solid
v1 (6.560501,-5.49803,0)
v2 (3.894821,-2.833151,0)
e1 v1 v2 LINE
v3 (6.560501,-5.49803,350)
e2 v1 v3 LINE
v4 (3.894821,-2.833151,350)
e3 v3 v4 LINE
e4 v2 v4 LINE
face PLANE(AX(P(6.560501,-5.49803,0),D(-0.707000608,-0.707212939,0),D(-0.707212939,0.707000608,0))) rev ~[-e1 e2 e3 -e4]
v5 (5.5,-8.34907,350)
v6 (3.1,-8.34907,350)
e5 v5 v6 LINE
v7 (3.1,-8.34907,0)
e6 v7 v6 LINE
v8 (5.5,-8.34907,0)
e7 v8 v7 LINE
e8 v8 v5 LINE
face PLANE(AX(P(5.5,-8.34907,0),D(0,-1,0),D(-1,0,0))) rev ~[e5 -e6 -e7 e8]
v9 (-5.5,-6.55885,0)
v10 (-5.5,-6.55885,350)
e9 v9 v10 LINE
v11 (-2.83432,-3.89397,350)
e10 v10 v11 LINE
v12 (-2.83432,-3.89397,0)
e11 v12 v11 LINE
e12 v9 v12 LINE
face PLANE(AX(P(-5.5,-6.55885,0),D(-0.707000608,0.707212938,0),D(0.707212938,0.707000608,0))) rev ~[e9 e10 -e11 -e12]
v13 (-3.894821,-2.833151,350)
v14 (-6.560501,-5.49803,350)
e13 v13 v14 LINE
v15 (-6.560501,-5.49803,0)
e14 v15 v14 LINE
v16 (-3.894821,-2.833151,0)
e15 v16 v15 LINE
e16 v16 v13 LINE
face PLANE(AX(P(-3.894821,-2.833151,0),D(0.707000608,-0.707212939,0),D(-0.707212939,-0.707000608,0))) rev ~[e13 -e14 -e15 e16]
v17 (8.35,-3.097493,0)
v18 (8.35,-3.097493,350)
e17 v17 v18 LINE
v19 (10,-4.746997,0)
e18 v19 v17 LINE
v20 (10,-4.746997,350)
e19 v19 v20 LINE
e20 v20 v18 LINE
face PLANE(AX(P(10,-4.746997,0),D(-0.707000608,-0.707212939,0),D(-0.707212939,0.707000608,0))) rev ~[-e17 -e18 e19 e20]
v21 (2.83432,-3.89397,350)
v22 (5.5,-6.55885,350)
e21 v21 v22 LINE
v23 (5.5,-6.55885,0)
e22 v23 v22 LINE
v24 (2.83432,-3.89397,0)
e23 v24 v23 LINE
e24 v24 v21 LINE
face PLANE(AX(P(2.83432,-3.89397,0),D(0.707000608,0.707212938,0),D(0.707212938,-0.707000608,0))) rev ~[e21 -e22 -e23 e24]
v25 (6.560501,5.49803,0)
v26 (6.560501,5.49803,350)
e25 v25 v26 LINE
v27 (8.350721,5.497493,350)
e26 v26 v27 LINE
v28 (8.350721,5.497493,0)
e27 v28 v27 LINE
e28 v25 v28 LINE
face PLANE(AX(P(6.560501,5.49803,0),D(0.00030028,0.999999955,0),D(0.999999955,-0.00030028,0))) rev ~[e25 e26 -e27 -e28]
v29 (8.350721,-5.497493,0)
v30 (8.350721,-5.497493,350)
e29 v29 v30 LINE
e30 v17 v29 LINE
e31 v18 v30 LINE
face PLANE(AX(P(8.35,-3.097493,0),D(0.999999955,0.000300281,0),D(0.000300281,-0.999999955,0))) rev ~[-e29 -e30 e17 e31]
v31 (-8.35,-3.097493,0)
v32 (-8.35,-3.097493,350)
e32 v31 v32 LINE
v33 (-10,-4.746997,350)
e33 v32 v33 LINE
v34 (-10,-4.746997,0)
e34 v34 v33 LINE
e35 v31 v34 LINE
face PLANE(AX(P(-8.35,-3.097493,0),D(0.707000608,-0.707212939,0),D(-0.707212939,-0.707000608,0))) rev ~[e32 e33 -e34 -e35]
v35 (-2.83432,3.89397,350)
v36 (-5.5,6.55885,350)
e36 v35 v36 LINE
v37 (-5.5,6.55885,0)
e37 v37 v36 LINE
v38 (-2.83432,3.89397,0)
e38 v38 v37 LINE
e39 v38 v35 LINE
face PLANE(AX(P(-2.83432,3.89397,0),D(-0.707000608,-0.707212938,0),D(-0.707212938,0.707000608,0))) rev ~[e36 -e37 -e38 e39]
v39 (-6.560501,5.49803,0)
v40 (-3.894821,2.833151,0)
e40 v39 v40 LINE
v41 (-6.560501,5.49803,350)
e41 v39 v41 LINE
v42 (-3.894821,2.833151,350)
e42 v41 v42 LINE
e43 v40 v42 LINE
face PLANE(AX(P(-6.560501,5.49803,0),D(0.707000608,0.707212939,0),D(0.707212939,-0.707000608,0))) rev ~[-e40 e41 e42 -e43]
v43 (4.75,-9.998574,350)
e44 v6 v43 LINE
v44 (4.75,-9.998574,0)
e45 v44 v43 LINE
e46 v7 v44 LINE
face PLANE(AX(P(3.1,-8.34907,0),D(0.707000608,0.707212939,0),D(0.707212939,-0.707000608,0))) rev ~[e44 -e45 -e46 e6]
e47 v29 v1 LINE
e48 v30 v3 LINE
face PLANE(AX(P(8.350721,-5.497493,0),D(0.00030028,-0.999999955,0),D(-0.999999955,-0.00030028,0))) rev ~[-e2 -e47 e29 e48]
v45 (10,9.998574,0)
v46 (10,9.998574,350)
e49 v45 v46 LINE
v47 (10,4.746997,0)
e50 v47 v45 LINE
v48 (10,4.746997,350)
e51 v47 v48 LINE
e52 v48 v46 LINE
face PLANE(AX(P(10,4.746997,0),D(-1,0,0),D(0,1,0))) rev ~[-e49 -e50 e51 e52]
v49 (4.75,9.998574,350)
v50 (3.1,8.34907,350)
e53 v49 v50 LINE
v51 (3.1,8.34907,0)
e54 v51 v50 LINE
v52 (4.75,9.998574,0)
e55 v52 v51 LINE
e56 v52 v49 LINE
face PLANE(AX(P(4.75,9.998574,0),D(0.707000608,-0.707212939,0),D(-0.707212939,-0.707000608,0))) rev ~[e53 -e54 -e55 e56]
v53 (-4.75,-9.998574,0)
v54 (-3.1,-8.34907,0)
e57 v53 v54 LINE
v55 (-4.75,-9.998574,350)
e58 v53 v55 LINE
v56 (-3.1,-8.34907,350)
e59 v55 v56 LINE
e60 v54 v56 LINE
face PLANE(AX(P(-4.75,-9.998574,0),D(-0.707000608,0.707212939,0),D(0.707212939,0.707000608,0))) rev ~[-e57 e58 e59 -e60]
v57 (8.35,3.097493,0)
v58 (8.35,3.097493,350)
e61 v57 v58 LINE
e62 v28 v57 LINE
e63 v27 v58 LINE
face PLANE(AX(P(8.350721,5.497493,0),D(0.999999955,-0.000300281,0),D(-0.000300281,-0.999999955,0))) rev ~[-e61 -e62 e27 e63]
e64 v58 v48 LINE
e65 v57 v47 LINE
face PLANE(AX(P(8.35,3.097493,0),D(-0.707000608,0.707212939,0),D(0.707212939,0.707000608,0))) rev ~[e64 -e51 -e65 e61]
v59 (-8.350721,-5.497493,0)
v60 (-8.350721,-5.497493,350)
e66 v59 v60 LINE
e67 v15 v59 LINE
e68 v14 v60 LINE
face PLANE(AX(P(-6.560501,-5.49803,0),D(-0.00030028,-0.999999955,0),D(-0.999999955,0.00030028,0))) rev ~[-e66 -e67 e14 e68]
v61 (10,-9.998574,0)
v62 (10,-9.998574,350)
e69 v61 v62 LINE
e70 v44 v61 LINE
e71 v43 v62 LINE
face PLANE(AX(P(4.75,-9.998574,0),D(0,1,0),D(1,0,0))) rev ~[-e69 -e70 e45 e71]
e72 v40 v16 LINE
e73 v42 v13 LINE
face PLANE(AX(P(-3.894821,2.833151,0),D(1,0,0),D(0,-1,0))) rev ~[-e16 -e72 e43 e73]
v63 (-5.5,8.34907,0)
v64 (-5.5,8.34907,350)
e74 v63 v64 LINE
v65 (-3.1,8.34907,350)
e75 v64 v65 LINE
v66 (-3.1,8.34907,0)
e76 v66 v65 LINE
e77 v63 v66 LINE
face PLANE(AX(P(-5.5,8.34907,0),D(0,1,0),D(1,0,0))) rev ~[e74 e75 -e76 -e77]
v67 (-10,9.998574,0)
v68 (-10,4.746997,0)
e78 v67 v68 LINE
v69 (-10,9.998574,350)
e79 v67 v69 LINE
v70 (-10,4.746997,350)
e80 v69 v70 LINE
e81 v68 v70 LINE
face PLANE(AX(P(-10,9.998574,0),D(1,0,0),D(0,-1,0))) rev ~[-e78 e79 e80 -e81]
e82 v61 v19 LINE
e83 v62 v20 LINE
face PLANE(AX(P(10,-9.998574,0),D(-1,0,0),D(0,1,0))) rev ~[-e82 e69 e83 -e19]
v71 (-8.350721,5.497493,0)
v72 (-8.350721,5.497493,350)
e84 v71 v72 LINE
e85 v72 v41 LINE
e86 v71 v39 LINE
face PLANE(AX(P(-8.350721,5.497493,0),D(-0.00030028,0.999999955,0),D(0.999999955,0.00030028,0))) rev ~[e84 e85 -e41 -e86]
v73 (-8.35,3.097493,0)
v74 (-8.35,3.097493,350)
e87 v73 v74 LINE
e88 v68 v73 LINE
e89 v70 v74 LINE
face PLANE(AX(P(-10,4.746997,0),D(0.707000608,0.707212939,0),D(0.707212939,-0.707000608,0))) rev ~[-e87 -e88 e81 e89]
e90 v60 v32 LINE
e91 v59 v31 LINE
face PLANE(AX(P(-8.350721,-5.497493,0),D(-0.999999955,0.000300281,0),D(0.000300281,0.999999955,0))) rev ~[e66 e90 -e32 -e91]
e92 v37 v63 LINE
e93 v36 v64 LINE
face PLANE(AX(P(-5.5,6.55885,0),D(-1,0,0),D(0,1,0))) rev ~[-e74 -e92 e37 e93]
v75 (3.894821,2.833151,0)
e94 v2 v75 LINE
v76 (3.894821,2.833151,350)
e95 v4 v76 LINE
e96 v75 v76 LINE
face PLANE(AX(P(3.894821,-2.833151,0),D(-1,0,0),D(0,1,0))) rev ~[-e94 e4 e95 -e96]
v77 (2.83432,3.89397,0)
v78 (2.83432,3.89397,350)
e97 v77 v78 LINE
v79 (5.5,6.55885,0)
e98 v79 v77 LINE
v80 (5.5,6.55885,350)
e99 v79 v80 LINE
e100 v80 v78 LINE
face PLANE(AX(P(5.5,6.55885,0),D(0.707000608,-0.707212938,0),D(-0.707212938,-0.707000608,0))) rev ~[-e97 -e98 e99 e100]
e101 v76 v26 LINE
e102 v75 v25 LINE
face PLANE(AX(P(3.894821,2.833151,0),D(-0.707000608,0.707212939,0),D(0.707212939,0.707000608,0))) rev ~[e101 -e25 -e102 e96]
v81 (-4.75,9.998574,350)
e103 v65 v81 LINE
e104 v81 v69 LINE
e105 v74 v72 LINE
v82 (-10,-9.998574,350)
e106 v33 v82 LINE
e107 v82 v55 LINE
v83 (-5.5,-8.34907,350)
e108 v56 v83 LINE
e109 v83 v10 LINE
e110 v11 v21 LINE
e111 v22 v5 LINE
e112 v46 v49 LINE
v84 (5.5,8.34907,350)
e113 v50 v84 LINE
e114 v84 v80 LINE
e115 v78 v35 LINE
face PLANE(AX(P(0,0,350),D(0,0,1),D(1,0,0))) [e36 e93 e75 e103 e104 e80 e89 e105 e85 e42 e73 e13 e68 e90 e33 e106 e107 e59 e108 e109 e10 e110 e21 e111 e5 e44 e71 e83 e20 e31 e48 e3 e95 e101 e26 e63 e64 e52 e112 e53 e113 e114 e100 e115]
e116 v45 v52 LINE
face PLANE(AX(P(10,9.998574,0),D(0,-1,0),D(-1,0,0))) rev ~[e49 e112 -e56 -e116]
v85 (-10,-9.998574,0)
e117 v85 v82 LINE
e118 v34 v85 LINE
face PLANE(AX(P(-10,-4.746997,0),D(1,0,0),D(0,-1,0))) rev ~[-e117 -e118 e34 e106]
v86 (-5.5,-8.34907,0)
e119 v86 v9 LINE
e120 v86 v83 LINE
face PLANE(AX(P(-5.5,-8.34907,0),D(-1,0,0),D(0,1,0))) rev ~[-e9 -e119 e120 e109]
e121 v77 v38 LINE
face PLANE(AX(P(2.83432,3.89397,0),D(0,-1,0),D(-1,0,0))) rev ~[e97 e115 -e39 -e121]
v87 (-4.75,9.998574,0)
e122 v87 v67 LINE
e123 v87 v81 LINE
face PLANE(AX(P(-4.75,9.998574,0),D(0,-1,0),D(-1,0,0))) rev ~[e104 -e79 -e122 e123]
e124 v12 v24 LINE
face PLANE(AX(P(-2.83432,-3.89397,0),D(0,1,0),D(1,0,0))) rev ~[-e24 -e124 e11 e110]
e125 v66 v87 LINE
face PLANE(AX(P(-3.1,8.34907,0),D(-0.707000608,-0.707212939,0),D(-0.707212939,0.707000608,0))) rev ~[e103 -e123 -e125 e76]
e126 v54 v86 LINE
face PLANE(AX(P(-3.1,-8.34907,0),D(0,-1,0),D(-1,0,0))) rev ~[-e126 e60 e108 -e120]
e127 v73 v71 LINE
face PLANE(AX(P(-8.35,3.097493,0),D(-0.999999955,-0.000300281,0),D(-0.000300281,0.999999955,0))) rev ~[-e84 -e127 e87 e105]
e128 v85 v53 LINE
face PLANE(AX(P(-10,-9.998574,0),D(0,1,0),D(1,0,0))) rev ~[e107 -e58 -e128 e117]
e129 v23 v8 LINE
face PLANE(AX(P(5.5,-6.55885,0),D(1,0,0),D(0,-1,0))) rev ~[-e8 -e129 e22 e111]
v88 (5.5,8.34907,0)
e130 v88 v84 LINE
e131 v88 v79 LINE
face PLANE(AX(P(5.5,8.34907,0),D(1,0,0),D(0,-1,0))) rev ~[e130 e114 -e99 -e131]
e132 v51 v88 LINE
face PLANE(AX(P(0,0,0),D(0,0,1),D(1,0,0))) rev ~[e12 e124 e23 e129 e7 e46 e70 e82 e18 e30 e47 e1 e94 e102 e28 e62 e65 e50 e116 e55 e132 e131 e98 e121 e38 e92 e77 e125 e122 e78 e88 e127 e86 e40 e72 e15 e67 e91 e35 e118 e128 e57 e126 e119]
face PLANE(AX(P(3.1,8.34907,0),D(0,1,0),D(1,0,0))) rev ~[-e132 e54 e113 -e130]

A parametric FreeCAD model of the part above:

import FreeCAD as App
import Part
import Sketcher
Q = App.Units.Quantity

doc = App.newDocument("Part")
body = doc.addObject("PartDesign::Body", "Body")

# Sketch on XY plane
sketch1 = body.newObject("Sketcher::SketchObject", "Sketch")
sketch1.AttachmentSupport = (doc.getObject("XY_Plane"), [""])
sketch1.MapMode = "FlatFace"
sketch1.addGeometry([
    Part.LineSegment(App.Vector(2.8, 3.9, 0), App.Vector(-2.8, 3.9, 0)),  # 0
    Part.LineSegment(App.Vector(-2.8, 3.9, 0), App.Vector(-5.5, 6.6, 0)),  # 1
    Part.LineSegment(App.Vector(-5.5, 6.6, 0), App.Vector(-5.5, 8.3, 0)),  # 2
    Part.LineSegment(App.Vector(-5.5, 8.3, 0), App.Vector(-3.1, 8.3, 0)),  # 3
    Part.LineSegment(App.Vector(-3.1, 8.3, 0), App.Vector(-4.8, 10, 0)),  # 4
    Part.LineSegment(App.Vector(-4.8, 10, 0), App.Vector(-10, 10, 0)),  # 5
    Part.LineSegment(App.Vector(-10, 10, 0), App.Vector(-10, 4.7, 0)),  # 6
    Part.LineSegment(App.Vector(-10, 4.7, 0), App.Vector(-8.3, 3.1, 0)),  # 7
    Part.LineSegment(App.Vector(-8.3, 3.1, 0), App.Vector(-8.4, 5.5, 0)),  # 8
    Part.LineSegment(App.Vector(-8.4, 5.5, 0), App.Vector(-6.6, 5.5, 0)),  # 9
    Part.LineSegment(App.Vector(-6.6, 5.5, 0), App.Vector(-3.9, 2.8, 0)),  # 10
    Part.LineSegment(App.Vector(-3.9, 2.8, 0), App.Vector(-3.9, -2.8, 0)),  # 11
    Part.LineSegment(App.Vector(-3.9, -2.8, 0), App.Vector(-6.6, -5.5, 0)),  # 12
    Part.LineSegment(App.Vector(-6.6, -5.5, 0), App.Vector(-8.4, -5.5, 0)),  # 13
    Part.LineSegment(App.Vector(-8.4, -5.5, 0), App.Vector(-8.3, -3.1, 0)),  # 14
    Part.LineSegment(App.Vector(-8.3, -3.1, 0), App.Vector(-10, -4.7, 0)),  # 15
    Part.LineSegment(App.Vector(-10, -4.7, 0), App.Vector(-10, -10, 0)),  # 16
    Part.LineSegment(App.Vector(-10, -10, 0), App.Vector(-4.8, -10, 0)),  # 17
    Part.LineSegment(App.Vector(-4.8, -10, 0), App.Vector(-3.1, -8.3, 0)),  # 18
    Part.LineSegment(App.Vector(-3.1, -8.3, 0), App.Vector(-5.5, -8.3, 0)),  # 19
    Part.LineSegment(App.Vector(-5.5, -8.3, 0), App.Vector(-5.5, -6.6, 0)),  # 20
    Part.LineSegment(App.Vector(-5.5, -6.6, 0), App.Vector(-2.8, -3.9, 0)),  # 21
    Part.LineSegment(App.Vector(-2.8, -3.9, 0), App.Vector(2.8, -3.9, 0)),  # 22
    Part.LineSegment(App.Vector(2.8, -3.9, 0), App.Vector(5.5, -6.6, 0)),  # 23
    Part.LineSegment(App.Vector(5.5, -6.6, 0), App.Vector(5.5, -8.3, 0)),  # 24
    Part.LineSegment(App.Vector(5.5, -8.3, 0), App.Vector(3.1, -8.3, 0)),  # 25
    Part.LineSegment(App.Vector(3.1, -8.3, 0), App.Vector(4.8, -10, 0)),  # 26
    Part.LineSegment(App.Vector(4.8, -10, 0), App.Vector(10, -10, 0)),  # 27
    Part.LineSegment(App.Vector(10, -10, 0), App.Vector(10, -4.7, 0)),  # 28
    Part.LineSegment(App.Vector(10, -4.7, 0), App.Vector(8.3, -3.1, 0)),  # 29
    Part.LineSegment(App.Vector(8.3, -3.1, 0), App.Vector(8.4, -5.5, 0)),  # 30
    Part.LineSegment(App.Vector(8.4, -5.5, 0), App.Vector(6.6, -5.5, 0)),  # 31
    Part.LineSegment(App.Vector(6.6, -5.5, 0), App.Vector(3.9, -2.8, 0)),  # 32
    Part.LineSegment(App.Vector(3.9, -2.8, 0), App.Vector(3.9, 2.8, 0)),  # 33
    Part.LineSegment(App.Vector(3.9, 2.8, 0), App.Vector(6.6, 5.5, 0)),  # 34
    Part.LineSegment(App.Vector(6.6, 5.5, 0), App.Vector(8.4, 5.5, 0)),  # 35
    Part.LineSegment(App.Vector(8.4, 5.5, 0), App.Vector(8.3, 3.1, 0)),  # 36
    Part.LineSegment(App.Vector(8.3, 3.1, 0), App.Vector(10, 4.7, 0)),  # 37
    Part.LineSegment(App.Vector(10, 4.7, 0), App.Vector(10, 10, 0)),  # 38
    Part.LineSegment(App.Vector(10, 10, 0), App.Vector(4.8, 10, 0)),  # 39
    Part.LineSegment(App.Vector(4.8, 10, 0), App.Vector(3.1, 8.3, 0)),  # 40
    Part.LineSegment(App.Vector(3.1, 8.3, 0), App.Vector(5.5, 8.3, 0)),  # 41
    Part.LineSegment(App.Vector(5.5, 8.3, 0), App.Vector(5.5, 6.6, 0)),  # 42
    Part.LineSegment(App.Vector(5.5, 6.6, 0), App.Vector(2.8, 3.9, 0)),  # 43
], False)
sketch1.addConstraint([
    Sketcher.Constraint("Coincident", 0, 2, 1, 1),
    Sketcher.Constraint("Coincident", 1, 2, 2, 1),
    Sketcher.Constraint("Coincident", 2, 2, 3, 1),
    Sketcher.Constraint("Coincident", 3, 2, 4, 1),
    Sketcher.Constraint("Coincident", 4, 2, 5, 1),
    Sketcher.Constraint("Coincident", 5, 2, 6, 1),
    Sketcher.Constraint("Coincident", 6, 2, 7, 1),
    Sketcher.Constraint("Coincident", 7, 2, 8, 1),
    Sketcher.Constraint("Coincident", 8, 2, 9, 1),
    Sketcher.Constraint("Coincident", 9, 2, 10, 1),
    Sketcher.Constraint("Coincident", 10, 2, 11, 1),
    Sketcher.Constraint("Coincident", 11, 2, 12, 1),
    Sketcher.Constraint("Coincident", 12, 2, 13, 1),
    Sketcher.Constraint("Coincident", 13, 2, 14, 1),
    Sketcher.Constraint("Coincident", 14, 2, 15, 1),
    Sketcher.Constraint("Coincident", 15, 2, 16, 1),
    Sketcher.Constraint("Coincident", 16, 2, 17, 1),
    Sketcher.Constraint("Coincident", 17, 2, 18, 1),
    Sketcher.Constraint("Coincident", 18, 2, 19, 1),
    Sketcher.Constraint("Coincident", 19, 2, 20, 1),
    Sketcher.Constraint("Coincident", 20, 2, 21, 1),
    Sketcher.Constraint("Coincident", 21, 2, 22, 1),
    Sketcher.Constraint("Coincident", 22, 2, 23, 1),
    Sketcher.Constraint("Coincident", 23, 2, 24, 1),
    Sketcher.Constraint("Coincident", 24, 2, 25, 1),
    Sketcher.Constraint("Coincident", 25, 2, 26, 1),
    Sketcher.Constraint("Coincident", 26, 2, 27, 1),
    Sketcher.Constraint("Coincident", 27, 2, 28, 1),
    Sketcher.Constraint("Coincident", 28, 2, 29, 1),
    Sketcher.Constraint("Coincident", 29, 2, 30, 1),
    Sketcher.Constraint("Coincident", 30, 2, 31, 1),
    Sketcher.Constraint("Coincident", 31, 2, 32, 1),
    Sketcher.Constraint("Coincident", 32, 2, 33, 1),
    Sketcher.Constraint("Coincident", 33, 2, 34, 1),
    Sketcher.Constraint("Coincident", 34, 2, 35, 1),
    Sketcher.Constraint("Coincident", 35, 2, 36, 1),
    Sketcher.Constraint("Coincident", 36, 2, 37, 1),
    Sketcher.Constraint("Coincident", 37, 2, 38, 1),
    Sketcher.Constraint("Coincident", 38, 2, 39, 1),
    Sketcher.Constraint("Coincident", 39, 2, 40, 1),
    Sketcher.Constraint("Coincident", 40, 2, 41, 1),
    Sketcher.Constraint("Coincident", 41, 2, 42, 1),
    Sketcher.Constraint("Coincident", 42, 2, 43, 1),
    Sketcher.Constraint("Coincident", 43, 2, 0, 1),
    Sketcher.Constraint("Horizontal", 0),
    Sketcher.Constraint("Vertical", 2),
    Sketcher.Constraint("Horizontal", 3),
    Sketcher.Constraint("Horizontal", 5),
    Sketcher.Constraint("Vertical", 6),
    Sketcher.Constraint("Vertical", 11),
    Sketcher.Constraint("Vertical", 16),
    Sketcher.Constraint("Horizontal", 17),
    Sketcher.Constraint("Horizontal", 19),
    Sketcher.Constraint("Vertical", 20),
    Sketcher.Constraint("Horizontal", 22),
    Sketcher.Constraint("Vertical", 24),
    Sketcher.Constraint("Horizontal", 25),
    Sketcher.Constraint("Horizontal", 27),
    Sketcher.Constraint("Vertical", 28),
    Sketcher.Constraint("Vertical", 33),
    Sketcher.Constraint("Vertical", 38),
    Sketcher.Constraint("Horizontal", 39),
    Sketcher.Constraint("Horizontal", 41),
    Sketcher.Constraint("Vertical", 42),
    Sketcher.Constraint("Symmetric", 0, 2, 22, 2, -1, 1),
    Sketcher.Constraint("Symmetric", 1, 2, 23, 2, -1, 1),
    Sketcher.Constraint("Symmetric", 3, 2, 25, 2, -1, 1),
    Sketcher.Constraint("Symmetric", 4, 2, 26, 2, -1, 1),
    Sketcher.Constraint("Symmetric", 6, 2, 28, 2, -1, 1),
    Sketcher.Constraint("Symmetric", 7, 2, 29, 2, -1, 1),
    Sketcher.Constraint("Symmetric", 8, 2, 30, 2, -1, 1),
    Sketcher.Constraint("Symmetric", 9, 2, 31, 2, -1, 1),
    Sketcher.Constraint("Symmetric", 10, 2, 32, 2, -1, 1),
    Sketcher.Constraint("Symmetric", 12, 2, 34, 2, -1, 1),
    Sketcher.Constraint("Symmetric", 13, 2, 35, 2, -1, 1),
    Sketcher.Constraint("Symmetric", 14, 2, 36, 2, -1, 1),
    Sketcher.Constraint("Symmetric", 15, 2, 37, 2, -1, 1),
    Sketcher.Constraint("Symmetric", 17, 2, 39, 2, -1, 1),
    Sketcher.Constraint("Symmetric", 18, 2, 40, 2, -1, 1),
    Sketcher.Constraint("Symmetric", 20, 2, 42, 2, -1, 1),
    Sketcher.Constraint("Symmetric", 20, 2, 23, 2, -2),
    Sketcher.Constraint("Symmetric", 18, 2, 25, 2, -2),
    Sketcher.Constraint("Symmetric", 17, 2, 26, 2, -2),
    Sketcher.Constraint("Symmetric", 15, 2, 28, 2, -2),
    Sketcher.Constraint("Symmetric", 14, 2, 29, 2, -2),
    Sketcher.Constraint("Symmetric", 13, 2, 30, 2, -2),
    Sketcher.Constraint("Symmetric", 12, 2, 31, 2, -2),
    Sketcher.Constraint("Parallel", 1, 4),
    Sketcher.Constraint("Parallel", 4, 7),
    Sketcher.Constraint("Perpendicular", 8, 9),
    Sketcher.Constraint("Parallel", 7, 10),
    Sketcher.Constraint("Parallel", 12, 15),
    Sketcher.Constraint("Parallel", 18, 21),
    Sketcher.Constraint("Parallel", 21, 34),
    Sketcher.Constraint("Parallel", 40, 43),
    Sketcher.Constraint("Equal", 4, 7),
    Sketcher.Constraint("Equal", 1, 10),
    Sketcher.Constraint("DistanceX", 3, 1, 3, 2, Q("2.4 mm")),
    Sketcher.Constraint("DistanceX", 5, 2, -1, 1, Q("10 mm")),
    Sketcher.Constraint("Distance", 8, Q("2.4 mm")),
    Sketcher.Constraint("DistanceX", 5, 2, 5, 1, Q("5.25 mm")),
    Sketcher.Constraint("DistanceX", 1, 2, -1, 1, Q("5.5 mm")),
    Sketcher.Constraint("DistanceY", 11, 2, 11, 1, Q("5.666302 mm")),
    Sketcher.Constraint("DistanceY", 12, 2, 0, 2, Q("9.392001 mm")),
    Sketcher.Constraint("DistanceX", 0, 2, 0, 1, Q("5.668641 mm")),
    Sketcher.Constraint("DistanceY", 2, 1, 2, 2, Q("1.79022 mm")),
    Sketcher.Constraint("DistanceX", 9, 2, -1, 1, Q("6.560501 mm")),
    Sketcher.Constraint("DistanceY", 0, 2, 2, 2, Q("4.455099 mm")),
    Sketcher.Constraint("DistanceX", 8, 2, 10, 2, Q("4.455899 mm")),
])
pad1 = body.newObject("PartDesign::Pad", "Pad")
pad1.Profile = sketch1
pad1.Length = 350

doc.recompute()
